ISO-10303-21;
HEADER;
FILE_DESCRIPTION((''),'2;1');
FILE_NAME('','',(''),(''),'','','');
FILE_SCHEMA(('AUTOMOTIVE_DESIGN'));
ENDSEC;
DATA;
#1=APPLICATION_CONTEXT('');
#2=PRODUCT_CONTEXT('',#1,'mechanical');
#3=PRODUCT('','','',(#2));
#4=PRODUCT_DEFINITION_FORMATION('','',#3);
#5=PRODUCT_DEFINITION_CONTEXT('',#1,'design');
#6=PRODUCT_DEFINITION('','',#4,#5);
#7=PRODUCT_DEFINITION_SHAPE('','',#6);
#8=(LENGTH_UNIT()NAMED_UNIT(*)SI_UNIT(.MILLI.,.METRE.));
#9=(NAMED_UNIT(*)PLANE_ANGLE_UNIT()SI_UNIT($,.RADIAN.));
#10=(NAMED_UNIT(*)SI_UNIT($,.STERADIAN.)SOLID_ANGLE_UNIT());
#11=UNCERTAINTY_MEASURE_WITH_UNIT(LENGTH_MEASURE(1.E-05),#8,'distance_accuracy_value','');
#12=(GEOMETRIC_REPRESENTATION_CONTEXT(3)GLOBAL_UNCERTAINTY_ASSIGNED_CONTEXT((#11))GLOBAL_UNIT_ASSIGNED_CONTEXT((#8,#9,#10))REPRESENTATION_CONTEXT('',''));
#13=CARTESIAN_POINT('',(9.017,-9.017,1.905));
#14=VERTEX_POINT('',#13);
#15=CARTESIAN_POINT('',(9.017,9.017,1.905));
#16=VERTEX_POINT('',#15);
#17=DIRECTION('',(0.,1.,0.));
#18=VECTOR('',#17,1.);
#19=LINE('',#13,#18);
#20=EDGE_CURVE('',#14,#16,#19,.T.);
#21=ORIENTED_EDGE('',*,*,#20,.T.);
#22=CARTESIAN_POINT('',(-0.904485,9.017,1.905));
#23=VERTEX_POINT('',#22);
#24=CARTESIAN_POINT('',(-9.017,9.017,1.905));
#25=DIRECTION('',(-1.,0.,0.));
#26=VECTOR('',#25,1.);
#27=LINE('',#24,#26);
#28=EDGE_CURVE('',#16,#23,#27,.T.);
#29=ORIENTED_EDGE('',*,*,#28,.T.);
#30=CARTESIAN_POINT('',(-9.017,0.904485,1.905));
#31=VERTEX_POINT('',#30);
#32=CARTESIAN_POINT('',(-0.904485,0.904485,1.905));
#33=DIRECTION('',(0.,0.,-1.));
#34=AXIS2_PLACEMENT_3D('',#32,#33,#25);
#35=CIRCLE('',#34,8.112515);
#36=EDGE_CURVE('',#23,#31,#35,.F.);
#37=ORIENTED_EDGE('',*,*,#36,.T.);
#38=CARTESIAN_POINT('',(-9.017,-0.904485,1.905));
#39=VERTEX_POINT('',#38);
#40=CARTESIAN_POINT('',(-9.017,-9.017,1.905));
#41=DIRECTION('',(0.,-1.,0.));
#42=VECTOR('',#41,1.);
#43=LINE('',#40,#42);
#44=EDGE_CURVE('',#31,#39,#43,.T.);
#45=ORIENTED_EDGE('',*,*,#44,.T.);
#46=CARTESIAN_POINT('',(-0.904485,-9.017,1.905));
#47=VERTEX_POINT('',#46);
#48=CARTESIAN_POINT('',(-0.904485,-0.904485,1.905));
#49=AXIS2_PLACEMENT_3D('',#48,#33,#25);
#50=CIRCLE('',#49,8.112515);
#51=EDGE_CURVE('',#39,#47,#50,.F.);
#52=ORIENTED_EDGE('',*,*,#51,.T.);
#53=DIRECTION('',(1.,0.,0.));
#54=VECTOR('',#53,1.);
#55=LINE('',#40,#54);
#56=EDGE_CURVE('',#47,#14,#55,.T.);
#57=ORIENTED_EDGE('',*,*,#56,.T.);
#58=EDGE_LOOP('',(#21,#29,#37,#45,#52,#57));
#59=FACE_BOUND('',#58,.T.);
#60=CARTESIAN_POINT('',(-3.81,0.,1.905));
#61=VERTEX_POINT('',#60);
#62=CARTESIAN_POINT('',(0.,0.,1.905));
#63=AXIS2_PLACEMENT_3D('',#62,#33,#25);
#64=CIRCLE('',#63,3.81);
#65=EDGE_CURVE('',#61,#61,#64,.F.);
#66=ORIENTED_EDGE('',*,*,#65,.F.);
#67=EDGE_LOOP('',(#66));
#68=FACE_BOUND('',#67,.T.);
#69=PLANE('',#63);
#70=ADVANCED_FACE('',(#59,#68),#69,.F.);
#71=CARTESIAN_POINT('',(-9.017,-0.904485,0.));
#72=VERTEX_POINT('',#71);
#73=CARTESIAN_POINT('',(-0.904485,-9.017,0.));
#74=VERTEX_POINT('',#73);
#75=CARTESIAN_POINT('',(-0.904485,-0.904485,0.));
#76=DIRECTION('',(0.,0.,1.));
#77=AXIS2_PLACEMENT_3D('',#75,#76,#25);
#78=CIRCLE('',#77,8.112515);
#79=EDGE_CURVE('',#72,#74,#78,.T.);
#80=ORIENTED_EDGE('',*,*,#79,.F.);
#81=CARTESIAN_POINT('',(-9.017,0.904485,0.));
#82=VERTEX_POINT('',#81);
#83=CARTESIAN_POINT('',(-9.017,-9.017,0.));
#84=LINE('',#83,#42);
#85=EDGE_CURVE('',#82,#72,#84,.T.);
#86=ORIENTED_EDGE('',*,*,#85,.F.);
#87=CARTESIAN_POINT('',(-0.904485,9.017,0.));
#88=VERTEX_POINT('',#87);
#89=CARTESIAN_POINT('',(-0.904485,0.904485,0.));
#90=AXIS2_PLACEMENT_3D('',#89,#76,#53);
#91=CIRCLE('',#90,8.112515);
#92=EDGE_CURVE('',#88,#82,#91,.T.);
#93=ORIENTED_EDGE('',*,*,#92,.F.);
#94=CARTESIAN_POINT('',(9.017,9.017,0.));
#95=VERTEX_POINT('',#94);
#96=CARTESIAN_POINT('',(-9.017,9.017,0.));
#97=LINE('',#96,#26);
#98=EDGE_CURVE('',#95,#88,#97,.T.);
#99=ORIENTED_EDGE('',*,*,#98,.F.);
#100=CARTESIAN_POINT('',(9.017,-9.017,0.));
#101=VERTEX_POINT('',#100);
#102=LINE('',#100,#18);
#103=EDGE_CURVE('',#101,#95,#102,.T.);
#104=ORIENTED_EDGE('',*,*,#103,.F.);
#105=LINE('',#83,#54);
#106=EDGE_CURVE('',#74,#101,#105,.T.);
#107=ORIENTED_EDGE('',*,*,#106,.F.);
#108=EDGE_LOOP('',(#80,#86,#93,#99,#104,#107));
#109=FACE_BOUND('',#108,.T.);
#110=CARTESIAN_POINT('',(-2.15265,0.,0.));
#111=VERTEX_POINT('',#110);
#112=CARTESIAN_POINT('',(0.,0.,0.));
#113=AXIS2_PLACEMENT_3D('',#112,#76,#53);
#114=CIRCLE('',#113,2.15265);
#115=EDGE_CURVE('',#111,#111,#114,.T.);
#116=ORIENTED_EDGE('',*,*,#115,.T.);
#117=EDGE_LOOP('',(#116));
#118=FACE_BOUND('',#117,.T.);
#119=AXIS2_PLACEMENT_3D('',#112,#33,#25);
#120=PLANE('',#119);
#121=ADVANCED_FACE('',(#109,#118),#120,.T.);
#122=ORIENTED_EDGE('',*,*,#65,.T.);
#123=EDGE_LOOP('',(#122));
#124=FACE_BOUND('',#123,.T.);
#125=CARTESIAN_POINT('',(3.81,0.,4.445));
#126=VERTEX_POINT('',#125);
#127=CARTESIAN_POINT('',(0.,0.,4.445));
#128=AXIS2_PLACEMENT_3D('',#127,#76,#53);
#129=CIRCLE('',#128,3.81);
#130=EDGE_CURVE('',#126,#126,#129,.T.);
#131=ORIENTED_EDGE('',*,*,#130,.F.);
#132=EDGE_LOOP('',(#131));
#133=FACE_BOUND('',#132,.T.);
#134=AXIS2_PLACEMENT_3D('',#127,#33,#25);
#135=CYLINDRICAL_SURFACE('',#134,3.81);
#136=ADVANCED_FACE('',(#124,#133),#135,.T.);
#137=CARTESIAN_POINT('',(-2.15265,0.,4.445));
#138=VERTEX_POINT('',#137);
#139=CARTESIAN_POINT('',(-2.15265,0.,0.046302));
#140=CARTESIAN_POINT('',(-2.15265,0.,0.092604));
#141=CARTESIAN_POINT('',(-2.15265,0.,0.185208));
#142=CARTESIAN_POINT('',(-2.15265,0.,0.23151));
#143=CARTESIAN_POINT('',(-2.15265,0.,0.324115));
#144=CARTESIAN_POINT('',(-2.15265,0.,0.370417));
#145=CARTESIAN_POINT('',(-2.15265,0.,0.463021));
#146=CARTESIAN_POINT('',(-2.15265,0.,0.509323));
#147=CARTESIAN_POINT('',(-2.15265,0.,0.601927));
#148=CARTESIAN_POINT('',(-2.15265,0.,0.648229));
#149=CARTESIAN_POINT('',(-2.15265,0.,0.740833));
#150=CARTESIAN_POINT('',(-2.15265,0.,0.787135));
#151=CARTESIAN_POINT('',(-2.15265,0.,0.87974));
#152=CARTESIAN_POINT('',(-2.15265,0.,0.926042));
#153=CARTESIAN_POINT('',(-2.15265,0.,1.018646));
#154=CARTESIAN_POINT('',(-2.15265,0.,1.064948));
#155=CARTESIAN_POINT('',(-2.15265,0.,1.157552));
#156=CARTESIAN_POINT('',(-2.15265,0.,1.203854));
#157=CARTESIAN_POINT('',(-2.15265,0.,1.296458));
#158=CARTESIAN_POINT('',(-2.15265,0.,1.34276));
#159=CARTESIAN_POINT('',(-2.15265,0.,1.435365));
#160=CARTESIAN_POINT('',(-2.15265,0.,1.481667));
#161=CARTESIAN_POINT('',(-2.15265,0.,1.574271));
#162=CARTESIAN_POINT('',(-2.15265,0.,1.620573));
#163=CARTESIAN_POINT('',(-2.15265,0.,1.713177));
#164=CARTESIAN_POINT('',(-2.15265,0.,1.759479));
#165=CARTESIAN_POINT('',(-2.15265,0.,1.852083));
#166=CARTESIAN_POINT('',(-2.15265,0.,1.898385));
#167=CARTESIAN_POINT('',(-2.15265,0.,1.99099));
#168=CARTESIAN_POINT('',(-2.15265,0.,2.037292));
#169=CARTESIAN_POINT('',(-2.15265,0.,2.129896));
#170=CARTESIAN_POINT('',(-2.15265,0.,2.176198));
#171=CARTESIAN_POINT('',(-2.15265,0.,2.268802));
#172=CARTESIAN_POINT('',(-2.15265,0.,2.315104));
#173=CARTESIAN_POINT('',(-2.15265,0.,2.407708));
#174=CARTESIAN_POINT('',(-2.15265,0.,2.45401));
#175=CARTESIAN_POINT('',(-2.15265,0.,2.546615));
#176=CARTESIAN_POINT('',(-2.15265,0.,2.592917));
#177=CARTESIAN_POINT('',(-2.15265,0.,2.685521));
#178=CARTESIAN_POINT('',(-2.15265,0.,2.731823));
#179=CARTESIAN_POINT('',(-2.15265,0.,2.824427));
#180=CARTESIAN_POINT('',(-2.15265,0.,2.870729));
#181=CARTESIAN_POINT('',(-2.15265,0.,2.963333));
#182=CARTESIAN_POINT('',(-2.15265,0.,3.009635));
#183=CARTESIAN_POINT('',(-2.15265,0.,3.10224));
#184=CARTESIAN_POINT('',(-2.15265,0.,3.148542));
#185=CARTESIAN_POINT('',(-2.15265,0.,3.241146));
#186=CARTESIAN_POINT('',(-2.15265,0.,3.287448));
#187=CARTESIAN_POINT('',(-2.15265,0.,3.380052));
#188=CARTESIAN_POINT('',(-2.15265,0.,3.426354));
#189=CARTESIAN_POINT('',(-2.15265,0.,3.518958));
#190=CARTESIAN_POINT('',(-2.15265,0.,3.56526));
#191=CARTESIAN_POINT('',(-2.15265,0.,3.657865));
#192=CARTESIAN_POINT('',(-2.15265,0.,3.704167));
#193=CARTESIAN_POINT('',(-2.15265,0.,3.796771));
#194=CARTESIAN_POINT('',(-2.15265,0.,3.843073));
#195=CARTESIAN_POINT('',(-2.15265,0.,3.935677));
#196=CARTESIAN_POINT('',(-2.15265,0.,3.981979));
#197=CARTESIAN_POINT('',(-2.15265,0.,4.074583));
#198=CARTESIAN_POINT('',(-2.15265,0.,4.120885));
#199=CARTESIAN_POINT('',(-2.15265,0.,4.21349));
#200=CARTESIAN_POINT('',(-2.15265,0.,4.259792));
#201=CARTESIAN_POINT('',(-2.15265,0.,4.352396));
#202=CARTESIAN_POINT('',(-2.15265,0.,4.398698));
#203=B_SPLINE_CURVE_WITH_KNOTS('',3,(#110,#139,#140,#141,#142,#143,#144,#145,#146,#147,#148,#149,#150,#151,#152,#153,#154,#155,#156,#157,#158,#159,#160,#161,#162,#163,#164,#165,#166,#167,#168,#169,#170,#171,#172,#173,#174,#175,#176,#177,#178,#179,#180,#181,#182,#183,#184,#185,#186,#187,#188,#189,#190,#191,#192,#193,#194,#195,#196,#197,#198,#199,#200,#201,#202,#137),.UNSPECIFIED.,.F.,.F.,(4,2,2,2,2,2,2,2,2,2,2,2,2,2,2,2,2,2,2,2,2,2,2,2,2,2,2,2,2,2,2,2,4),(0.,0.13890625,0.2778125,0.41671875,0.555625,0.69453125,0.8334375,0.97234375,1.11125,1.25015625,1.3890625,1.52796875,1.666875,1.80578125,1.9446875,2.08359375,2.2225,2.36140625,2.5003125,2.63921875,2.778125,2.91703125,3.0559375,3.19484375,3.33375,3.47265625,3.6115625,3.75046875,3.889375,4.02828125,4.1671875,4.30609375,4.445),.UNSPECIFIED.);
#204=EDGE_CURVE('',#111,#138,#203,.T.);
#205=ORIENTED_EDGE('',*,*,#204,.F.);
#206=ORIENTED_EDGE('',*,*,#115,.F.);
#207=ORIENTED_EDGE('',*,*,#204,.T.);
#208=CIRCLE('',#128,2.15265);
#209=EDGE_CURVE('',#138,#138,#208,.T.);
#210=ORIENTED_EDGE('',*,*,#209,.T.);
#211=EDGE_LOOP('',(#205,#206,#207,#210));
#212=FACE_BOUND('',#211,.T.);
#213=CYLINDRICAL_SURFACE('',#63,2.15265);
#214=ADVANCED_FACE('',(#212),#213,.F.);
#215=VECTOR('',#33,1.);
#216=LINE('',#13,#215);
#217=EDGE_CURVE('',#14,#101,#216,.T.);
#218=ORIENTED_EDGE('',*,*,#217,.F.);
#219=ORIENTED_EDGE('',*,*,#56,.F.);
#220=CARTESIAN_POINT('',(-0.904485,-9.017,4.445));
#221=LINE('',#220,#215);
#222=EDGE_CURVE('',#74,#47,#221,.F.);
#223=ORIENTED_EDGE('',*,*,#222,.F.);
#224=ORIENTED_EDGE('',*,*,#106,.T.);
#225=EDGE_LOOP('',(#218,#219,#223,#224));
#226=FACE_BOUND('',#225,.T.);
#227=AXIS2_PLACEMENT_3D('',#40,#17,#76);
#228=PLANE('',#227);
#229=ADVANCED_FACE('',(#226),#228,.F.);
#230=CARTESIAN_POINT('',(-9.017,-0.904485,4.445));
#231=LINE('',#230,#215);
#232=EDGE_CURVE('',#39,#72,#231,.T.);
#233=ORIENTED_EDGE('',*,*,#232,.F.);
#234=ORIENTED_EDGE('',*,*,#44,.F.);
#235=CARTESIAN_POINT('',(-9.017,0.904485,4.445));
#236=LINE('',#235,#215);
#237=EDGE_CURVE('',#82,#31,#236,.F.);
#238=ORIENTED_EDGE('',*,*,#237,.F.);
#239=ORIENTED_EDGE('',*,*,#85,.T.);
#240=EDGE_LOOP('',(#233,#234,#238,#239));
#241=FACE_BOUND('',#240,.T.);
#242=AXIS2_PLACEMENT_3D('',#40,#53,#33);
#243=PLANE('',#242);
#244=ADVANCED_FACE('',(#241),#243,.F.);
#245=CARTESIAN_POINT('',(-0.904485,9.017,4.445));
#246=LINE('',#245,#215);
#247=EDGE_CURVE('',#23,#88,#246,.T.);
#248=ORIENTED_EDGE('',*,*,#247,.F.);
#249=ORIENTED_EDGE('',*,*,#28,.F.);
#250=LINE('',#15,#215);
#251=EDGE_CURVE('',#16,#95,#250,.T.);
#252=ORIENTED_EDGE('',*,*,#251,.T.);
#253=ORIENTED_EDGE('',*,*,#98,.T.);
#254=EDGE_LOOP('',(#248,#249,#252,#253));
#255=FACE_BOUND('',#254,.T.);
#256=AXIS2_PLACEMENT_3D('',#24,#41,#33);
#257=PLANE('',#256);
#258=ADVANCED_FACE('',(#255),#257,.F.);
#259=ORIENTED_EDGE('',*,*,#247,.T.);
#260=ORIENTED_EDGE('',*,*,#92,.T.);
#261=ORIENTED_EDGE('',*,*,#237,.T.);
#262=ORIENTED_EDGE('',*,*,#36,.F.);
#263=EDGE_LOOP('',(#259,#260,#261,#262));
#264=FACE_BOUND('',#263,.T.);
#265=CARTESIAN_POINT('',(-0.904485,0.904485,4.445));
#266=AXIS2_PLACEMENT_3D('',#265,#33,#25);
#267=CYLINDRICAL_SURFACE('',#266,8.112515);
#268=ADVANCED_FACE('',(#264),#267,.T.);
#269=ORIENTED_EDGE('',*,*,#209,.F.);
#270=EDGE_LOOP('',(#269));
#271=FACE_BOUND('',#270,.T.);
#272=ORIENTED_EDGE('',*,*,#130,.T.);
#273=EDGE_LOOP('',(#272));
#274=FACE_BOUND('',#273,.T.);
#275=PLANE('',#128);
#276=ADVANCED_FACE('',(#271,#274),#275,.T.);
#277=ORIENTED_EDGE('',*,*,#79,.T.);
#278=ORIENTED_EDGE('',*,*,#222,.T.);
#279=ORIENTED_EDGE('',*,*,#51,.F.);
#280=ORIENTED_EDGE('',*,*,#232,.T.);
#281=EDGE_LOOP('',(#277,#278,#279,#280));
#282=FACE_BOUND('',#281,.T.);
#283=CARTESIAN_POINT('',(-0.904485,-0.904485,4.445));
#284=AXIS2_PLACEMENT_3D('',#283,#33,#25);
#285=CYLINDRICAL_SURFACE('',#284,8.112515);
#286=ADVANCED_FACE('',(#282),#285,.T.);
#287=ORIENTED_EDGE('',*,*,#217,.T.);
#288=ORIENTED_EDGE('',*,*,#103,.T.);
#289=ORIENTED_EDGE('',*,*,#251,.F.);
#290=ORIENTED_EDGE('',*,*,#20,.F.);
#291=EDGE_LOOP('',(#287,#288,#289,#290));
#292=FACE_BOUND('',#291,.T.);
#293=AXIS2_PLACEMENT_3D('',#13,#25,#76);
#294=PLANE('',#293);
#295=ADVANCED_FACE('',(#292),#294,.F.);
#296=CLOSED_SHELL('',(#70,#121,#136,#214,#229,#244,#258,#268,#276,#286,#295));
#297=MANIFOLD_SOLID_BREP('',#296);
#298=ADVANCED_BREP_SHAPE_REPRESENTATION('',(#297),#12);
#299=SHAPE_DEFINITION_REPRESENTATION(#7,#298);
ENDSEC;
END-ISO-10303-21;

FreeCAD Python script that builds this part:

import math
import FreeCAD as App
import Part
import Sketcher
from FreeCAD import Vector
Q = App.Units.Quantity


def add_polygon(sketch, points):
    """Adds a closed chain of lines whose ends are joined by coincident constraints."""
    first, n = sketch.GeometryCount, len(points)
    for a, b in zip(points, points[1:] + points[:1]):
        sketch.addGeometry(Part.LineSegment(App.Vector(*a, 0), App.Vector(*b, 0)), False)
    for i in range(n):
        sketch.addConstraint(Sketcher.Constraint("Coincident", first + i, 2, first + (i + 1) % n, 1))

doc = App.newDocument("Part")
params = doc.addObject("Spreadsheet::Sheet", "Params")
for row, (alias, value) in enumerate([
    ("sketch1_width", "0.71 in"),
    ("pad1_length", "0.075 in"),
    ("sketch2_diameter", "0.3 in"),
    ("pad2_length", "0.1 in"),
], start=1):
    params.set(f"A{row}", alias)
    params.set(f"B{row}", "=" + value)
    params.setAlias(f"B{row}", alias)

body = doc.addObject("PartDesign::Body", "Body")

# Sketch on XY plane
sketch1 = body.newObject("Sketcher::SketchObject", "Sketch")
sketch1.AttachmentSupport = (doc.getObject("XY_Plane"), [""])
sketch1.MapMode = "FlatFace"
add_polygon(sketch1, [(-9, 9), (-9, -9), (9, -9), (9, 9)])  # lines 0-3
sketch1.addGeometry(Part.Circle(Vector(0, 0, 0), Vector(0, 0, 1), 2.2), False)  # 4
sketch1.addConstraint([
    Sketcher.Constraint("Vertical", 0),
    Sketcher.Constraint("Horizontal", 1),
    Sketcher.Constraint("Vertical", 2),
    Sketcher.Constraint("Horizontal", 3),
    Sketcher.Constraint("Coincident", 4, 3, -1, 1),
    Sketcher.Constraint("Symmetric", 0, 2, 2, 2, -1, 1),
    Sketcher.Constraint("Equal", 3, 0),
    Sketcher.Constraint("Diameter", 4, Q("0.1695 in")),
    Sketcher.Constraint("DistanceX", 1, 1, 1, 2, Q("0.71 in")),
])
sketch1.setExpression("Constraints[12]", "Params.sketch1_width")
pad1 = body.newObject("PartDesign::Pad", "Pad")
pad1.Profile = sketch1
pad1.setExpression("Length", "Params.pad1_length")

# Sketch on XY plane
sketch2 = body.newObject("Sketcher::SketchObject", "Sketch001")
sketch2.AttachmentSupport = (doc.getObject("XY_Plane"), [""])
sketch2.MapMode = "FlatFace"
sketch2.AttachmentOffset = App.Placement(Vector(0, 0, 0.075 * 25.4), App.Rotation())
sketch2.addGeometry([
    Part.Circle(Vector(0, 0, 0), Vector(0, 0, 1), 3.8),
    Part.Circle(Vector(0, 0, 0), Vector(0, 0, 1), 2.2),
], False)
sketch2.addConstraint([
    Sketcher.Constraint("Coincident", 0, 3, -1, 1),
    Sketcher.Constraint("Coincident", 1, 3, -1, 1),
    Sketcher.Constraint("Diameter", 0, Q("0.3 in")),
    Sketcher.Constraint("Diameter", 1, Q("0.1695 in")),
])
sketch2.setExpression("Constraints[2]", "Params.sketch2_diameter")
pad2 = body.newObject("PartDesign::Pad", "Pad001")
pad2.Profile = sketch2
pad2.setExpression("Length", "Params.pad2_length")

# Sketch on XY plane
sketch3 = body.newObject("Sketcher::SketchObject", "Sketch002")
sketch3.AttachmentSupport = (doc.getObject("XY_Plane"), [""])
sketch3.MapMode = "FlatFace"
sketch3.addGeometry([
    Part.LineSegment(Vector(-9, 1, 0), Vector(-9, 9, 0)),  # 0
    Part.LineSegment(Vector(-9, 9, 0), Vector(-1, 9, 0)),  # 1
    Part.ArcOfCircle(Part.Circle(Vector(-1, 1, 0), Vector(0, 0, 1), 8), math.radians(90), math.radians(180)),  # 2
    Part.LineSegment(Vector(-1, -9, 0), Vector(-9, -9, 0)),  # 3
    Part.LineSegment(Vector(-9, -9, 0), Vector(-9, -1, 0)),  # 4
    Part.ArcOfCircle(Part.Circle(Vector(-1, -1, 0), Vector(0, 0, 1), 8), math.radians(180), math.radians(270)),  # 5
], False)
sketch3.addConstraint([
    Sketcher.Constraint("Coincident", 0, 2, 1, 1),
    Sketcher.Constraint("Tangent", 1, 2, 2, 1),
    Sketcher.Constraint("Tangent", 2, 2, 0, 1),
    Sketcher.Constraint("Coincident", 3, 2, 4, 1),
    Sketcher.Constraint("Tangent", 4, 2, 5, 1),
    Sketcher.Constraint("Tangent", 5, 2, 3, 1),
    Sketcher.Constraint("Vertical", 0),
    Sketcher.Constraint("Horizontal", 1),
    Sketcher.Constraint("Horizontal", 3),
    Sketcher.Constraint("Vertical", 4),
    Sketcher.Constraint("Equal", 2, 5),
    Sketcher.Constraint("Symmetric", 2, 3, 5, 3, -1),
    Sketcher.Constraint("DistanceY", 3, 2, 0, 2, Q("0.71 in")),
    Sketcher.Constraint("DistanceX", 0, 2, -1, 1, Q("0.355 in")),
    Sketcher.Constraint("Radius", 2, 8.112515),
])
pocket1 = body.newObject("PartDesign::Pocket", "Pocket")
pocket1.Profile = sketch3
pocket1.Type = "ThroughAll"
pocket1.Reversed = True

doc.recompute()
